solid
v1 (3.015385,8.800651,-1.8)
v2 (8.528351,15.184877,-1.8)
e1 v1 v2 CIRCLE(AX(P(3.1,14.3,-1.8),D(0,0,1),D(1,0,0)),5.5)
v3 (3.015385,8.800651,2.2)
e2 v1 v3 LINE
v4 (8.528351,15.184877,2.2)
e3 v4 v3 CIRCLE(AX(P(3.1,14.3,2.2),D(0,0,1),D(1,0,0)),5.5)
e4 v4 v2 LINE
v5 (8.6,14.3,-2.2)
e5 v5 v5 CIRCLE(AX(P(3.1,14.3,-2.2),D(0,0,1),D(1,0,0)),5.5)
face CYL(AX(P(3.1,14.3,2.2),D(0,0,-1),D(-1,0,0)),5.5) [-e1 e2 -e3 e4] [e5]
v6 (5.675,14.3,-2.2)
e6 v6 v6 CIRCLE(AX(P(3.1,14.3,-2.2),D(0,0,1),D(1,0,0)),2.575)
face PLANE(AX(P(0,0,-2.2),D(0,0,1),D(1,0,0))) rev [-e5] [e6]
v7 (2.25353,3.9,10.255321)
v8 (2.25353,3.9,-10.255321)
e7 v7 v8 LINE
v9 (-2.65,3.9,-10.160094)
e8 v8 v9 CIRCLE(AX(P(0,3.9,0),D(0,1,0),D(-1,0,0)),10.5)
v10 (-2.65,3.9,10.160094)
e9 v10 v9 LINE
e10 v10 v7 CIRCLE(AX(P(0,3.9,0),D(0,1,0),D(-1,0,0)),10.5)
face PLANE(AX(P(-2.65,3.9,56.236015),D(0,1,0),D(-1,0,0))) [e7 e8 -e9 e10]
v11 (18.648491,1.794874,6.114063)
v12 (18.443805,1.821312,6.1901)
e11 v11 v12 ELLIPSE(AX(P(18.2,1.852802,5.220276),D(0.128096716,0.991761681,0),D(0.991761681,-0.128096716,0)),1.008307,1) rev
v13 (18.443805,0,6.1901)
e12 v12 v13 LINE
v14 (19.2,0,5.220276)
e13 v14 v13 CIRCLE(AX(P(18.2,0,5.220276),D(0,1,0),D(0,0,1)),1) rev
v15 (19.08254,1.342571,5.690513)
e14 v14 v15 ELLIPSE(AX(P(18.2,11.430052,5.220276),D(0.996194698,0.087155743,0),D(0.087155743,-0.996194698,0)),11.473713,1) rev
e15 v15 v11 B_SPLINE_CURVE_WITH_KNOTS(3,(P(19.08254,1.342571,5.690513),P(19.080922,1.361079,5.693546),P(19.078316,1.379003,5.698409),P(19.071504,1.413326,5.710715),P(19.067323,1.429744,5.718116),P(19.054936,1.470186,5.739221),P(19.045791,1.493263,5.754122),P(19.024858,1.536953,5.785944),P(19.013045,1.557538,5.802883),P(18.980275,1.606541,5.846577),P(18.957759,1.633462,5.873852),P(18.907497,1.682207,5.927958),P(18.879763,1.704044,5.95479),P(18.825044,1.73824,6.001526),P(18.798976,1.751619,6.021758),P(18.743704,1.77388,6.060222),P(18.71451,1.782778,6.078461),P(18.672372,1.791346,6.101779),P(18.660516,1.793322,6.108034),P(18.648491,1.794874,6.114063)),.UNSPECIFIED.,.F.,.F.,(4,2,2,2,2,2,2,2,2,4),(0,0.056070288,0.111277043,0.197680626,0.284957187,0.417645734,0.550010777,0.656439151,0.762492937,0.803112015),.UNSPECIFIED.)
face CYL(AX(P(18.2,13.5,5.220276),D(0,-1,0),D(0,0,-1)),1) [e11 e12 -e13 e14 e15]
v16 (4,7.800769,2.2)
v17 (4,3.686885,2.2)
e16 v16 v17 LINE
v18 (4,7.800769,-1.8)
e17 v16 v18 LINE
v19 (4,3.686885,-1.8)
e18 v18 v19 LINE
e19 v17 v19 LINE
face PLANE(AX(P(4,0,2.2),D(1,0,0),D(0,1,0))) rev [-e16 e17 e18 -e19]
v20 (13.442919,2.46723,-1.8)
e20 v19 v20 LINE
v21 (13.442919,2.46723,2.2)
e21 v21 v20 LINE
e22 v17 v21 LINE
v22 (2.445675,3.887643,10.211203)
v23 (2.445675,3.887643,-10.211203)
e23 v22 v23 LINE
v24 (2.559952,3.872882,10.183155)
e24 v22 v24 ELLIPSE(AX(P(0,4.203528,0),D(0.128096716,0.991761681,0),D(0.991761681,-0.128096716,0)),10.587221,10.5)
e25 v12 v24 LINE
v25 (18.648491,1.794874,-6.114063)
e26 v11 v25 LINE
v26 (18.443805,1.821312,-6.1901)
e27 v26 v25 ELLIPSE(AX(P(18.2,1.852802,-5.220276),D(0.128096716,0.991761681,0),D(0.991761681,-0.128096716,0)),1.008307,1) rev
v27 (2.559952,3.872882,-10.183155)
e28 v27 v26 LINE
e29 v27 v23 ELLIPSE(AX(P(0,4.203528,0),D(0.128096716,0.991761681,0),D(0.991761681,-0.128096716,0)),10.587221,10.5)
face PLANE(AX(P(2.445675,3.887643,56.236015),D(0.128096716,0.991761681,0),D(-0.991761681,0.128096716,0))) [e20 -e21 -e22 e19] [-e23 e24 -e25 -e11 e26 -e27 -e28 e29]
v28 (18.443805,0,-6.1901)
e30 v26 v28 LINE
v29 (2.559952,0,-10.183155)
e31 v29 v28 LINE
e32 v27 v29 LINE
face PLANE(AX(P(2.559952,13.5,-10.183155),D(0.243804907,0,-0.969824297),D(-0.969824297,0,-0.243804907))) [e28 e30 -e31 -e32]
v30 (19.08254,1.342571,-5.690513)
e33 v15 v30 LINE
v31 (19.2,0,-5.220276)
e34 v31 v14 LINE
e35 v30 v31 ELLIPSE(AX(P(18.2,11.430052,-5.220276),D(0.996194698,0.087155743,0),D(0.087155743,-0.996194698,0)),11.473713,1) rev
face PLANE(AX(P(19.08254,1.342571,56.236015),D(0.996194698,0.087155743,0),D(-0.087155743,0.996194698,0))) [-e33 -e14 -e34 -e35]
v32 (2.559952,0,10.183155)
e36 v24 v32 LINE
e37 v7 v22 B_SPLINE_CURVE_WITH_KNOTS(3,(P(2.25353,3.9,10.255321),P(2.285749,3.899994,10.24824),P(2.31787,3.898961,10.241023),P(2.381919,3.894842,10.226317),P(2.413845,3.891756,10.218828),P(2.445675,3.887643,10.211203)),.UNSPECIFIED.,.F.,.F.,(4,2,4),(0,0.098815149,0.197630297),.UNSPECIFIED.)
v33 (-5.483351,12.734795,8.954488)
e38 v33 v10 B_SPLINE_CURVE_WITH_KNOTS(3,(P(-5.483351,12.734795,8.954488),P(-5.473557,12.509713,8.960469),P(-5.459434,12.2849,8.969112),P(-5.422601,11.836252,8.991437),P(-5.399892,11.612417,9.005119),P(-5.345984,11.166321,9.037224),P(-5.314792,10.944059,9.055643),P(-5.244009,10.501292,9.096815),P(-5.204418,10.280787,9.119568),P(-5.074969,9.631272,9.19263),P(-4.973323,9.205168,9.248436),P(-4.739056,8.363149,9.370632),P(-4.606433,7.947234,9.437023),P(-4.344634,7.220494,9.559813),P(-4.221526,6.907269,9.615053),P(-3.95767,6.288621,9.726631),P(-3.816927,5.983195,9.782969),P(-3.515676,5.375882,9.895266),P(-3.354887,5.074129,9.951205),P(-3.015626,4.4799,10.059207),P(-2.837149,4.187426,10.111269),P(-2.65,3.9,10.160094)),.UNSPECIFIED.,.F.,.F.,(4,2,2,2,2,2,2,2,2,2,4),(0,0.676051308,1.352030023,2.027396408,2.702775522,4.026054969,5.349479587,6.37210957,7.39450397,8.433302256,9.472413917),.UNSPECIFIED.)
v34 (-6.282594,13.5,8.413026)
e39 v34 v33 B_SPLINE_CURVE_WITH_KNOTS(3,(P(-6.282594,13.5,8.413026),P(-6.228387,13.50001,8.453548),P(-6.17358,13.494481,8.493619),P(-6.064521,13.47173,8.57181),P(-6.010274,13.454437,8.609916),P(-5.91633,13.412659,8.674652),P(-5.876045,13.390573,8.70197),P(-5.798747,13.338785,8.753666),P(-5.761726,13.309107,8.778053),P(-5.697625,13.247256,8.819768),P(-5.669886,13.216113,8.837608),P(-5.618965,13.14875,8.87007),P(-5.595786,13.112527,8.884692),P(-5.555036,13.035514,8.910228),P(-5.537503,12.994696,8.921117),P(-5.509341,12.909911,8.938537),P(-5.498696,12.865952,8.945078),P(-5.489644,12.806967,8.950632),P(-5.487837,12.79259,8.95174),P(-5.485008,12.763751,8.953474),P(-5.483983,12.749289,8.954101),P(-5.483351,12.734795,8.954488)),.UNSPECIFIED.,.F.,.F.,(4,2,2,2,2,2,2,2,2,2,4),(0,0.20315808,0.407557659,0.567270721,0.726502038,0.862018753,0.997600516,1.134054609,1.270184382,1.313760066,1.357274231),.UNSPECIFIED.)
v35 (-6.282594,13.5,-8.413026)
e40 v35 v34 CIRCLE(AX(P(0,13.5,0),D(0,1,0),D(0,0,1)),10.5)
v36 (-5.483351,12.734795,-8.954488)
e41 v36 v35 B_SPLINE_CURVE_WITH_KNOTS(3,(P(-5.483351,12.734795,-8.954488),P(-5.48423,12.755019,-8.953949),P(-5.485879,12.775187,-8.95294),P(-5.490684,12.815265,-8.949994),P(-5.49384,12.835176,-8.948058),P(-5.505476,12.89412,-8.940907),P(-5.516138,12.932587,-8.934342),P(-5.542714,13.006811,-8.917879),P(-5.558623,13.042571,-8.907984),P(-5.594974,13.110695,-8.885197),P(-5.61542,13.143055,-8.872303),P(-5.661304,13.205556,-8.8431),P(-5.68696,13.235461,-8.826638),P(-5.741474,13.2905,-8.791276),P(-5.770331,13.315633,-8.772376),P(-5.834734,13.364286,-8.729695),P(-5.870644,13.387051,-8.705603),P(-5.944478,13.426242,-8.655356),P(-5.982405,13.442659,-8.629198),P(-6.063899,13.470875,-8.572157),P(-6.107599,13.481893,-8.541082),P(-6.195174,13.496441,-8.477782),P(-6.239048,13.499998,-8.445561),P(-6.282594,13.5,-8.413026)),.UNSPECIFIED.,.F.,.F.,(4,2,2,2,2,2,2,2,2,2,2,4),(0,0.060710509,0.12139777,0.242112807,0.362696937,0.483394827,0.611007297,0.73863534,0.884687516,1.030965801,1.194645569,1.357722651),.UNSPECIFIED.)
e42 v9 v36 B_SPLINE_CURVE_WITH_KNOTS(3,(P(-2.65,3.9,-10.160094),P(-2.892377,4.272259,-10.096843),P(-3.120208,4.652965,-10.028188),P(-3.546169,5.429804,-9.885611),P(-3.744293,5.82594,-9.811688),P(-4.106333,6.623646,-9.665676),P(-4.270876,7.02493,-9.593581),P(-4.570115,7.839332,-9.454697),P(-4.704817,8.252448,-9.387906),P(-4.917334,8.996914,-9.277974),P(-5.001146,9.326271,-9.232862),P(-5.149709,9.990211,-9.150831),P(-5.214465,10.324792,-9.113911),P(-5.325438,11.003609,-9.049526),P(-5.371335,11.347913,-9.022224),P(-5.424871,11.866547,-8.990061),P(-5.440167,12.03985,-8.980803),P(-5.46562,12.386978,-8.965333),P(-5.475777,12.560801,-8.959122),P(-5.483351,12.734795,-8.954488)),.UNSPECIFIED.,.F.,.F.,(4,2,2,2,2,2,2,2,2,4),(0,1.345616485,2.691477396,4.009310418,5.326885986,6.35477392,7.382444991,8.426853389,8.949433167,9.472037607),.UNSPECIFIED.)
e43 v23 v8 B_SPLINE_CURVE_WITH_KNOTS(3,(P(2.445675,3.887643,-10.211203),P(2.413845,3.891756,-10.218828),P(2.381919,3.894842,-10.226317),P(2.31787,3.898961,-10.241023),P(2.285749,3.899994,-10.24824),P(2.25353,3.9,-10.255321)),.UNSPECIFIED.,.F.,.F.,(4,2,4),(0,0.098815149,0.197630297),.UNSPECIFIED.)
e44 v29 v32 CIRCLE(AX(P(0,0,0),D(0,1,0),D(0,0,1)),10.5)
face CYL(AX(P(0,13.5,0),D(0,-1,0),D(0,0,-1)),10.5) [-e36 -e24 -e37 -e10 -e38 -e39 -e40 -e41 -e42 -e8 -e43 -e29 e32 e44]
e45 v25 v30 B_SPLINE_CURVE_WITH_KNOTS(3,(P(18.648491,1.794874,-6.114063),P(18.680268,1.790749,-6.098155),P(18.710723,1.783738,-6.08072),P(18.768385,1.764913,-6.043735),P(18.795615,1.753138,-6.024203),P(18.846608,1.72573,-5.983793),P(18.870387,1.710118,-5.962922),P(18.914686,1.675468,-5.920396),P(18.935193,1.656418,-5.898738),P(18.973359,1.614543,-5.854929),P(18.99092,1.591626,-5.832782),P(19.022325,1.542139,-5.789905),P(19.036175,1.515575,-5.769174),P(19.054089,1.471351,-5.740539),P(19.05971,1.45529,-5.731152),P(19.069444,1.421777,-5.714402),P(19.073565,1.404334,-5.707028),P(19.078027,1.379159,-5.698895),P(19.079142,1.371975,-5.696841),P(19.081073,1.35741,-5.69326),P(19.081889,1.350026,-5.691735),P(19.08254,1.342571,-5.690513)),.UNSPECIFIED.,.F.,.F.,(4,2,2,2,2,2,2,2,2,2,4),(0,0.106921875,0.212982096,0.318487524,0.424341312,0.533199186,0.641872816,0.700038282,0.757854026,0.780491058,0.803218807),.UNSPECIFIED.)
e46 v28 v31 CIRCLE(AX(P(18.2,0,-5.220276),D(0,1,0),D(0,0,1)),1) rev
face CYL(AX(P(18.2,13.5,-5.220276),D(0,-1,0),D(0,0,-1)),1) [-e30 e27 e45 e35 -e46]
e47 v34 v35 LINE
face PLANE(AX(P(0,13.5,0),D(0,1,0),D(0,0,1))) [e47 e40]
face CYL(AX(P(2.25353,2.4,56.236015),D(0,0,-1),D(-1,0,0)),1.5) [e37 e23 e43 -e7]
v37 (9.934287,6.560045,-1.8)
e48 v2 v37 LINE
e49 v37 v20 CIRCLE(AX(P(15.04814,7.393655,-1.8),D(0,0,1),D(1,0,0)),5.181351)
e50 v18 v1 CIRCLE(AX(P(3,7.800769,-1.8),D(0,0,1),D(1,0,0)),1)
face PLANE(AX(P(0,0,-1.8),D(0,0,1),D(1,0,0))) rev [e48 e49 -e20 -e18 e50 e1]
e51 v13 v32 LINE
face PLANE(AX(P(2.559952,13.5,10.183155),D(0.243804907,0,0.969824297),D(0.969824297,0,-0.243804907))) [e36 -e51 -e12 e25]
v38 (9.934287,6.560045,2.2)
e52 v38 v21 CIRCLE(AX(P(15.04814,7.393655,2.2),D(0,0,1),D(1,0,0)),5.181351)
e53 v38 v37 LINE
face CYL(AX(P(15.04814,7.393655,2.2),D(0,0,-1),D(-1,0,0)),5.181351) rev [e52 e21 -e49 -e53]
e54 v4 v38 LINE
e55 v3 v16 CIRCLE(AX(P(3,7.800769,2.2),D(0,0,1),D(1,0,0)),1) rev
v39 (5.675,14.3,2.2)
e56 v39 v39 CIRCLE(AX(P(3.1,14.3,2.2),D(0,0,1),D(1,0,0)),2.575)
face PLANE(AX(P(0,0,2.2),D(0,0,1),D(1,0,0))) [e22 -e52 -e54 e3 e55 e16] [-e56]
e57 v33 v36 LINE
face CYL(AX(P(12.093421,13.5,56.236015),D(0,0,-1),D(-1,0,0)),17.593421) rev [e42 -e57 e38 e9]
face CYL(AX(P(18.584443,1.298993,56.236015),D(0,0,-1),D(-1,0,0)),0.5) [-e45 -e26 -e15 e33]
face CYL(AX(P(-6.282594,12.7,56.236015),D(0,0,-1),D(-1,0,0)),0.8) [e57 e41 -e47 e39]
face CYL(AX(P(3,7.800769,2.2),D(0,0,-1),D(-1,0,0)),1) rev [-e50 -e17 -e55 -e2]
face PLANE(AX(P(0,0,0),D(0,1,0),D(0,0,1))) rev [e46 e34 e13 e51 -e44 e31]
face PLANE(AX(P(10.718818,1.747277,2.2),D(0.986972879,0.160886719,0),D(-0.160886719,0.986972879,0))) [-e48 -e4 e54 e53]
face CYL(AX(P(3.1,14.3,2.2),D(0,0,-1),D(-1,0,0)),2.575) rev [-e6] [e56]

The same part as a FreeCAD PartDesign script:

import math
import FreeCAD as App
import Part
import Sketcher

V = App.Vector
Q = App.Units.Quantity


def edges_at(feature, points):
    """Names of the edges that pass closest to the given points."""
    edges = feature.Shape.Edges
    near = lambda p: min(range(len(edges)), key=lambda i: edges[i].distToShape(Part.Vertex(*p))[0])
    return sorted({f"Edge{near(p) + 1}" for p in points})

doc = App.newDocument("Part")
body = doc.addObject("PartDesign::Body", "Body")

# Sketch on XZ plane
sketch1 = body.newObject("Sketcher::SketchObject", "Sketch")
sketch1.AttachmentSupport = (doc.getObject("XZ_Plane"), [""])
sketch1.MapMode = "FlatFace"
sketch1.addGeometry(Part.LineSegment(V(19.2, 5.220276, 0), V(19.2, -5.220276, 0)), False)
sketch1.addGeometry(Part.ArcOfCircle(Part.Circle(V(18.2, -5.220276, 0), V(0, 0, 1), 1), math.radians(-75.888782), math.radians(0)), False)
sketch1.addGeometry(Part.LineSegment(V(18.443805, -6.1901, 0), V(2.559952, -10.183155, 0)), False)
sketch1.addGeometry(Part.ArcOfCircle(Part.Circle(V(0, 0, 0), V(0, 0, 1), 10.5), math.radians(75.888782), math.radians(284.111218)), False)
sketch1.addGeometry(Part.LineSegment(V(2.559952, 10.183155, 0), V(18.443805, 6.1901, 0)), False)
sketch1.addGeometry(Part.ArcOfCircle(Part.Circle(V(18.2, 5.220276, 0), V(0, 0, 1), 1), math.radians(0), math.radians(75.888782)), False)
sketch1.addConstraint(Sketcher.Constraint("Tangent", 0, 2, 1, 2))
sketch1.addConstraint(Sketcher.Constraint("Tangent", 1, 1, 2, 1))
sketch1.addConstraint(Sketcher.Constraint("Tangent", 2, 2, 3, 2))
sketch1.addConstraint(Sketcher.Constraint("Tangent", 3, 1, 4, 1))
sketch1.addConstraint(Sketcher.Constraint("Tangent", 4, 2, 5, 2))
sketch1.addConstraint(Sketcher.Constraint("Tangent", 5, 1, 0, 1))
sketch1.addConstraint(Sketcher.Constraint("Vertical", 0))
sketch1.addConstraint(Sketcher.Constraint("Coincident", 3, 3, -1, 1))
sketch1.addConstraint(Sketcher.Constraint("Equal", 1, 5))
sketch1.addConstraint(Sketcher.Constraint("Vertical", 2, 2, 3, 1))
sketch1.addConstraint(Sketcher.Constraint("Radius", 1, Q("1 mm")))
sketch1.addConstraint(Sketcher.Constraint("Radius", 3, Q("10.5 mm")))
sketch1.addConstraint(Sketcher.Constraint("DistanceX", -1, 1, 1, 3, Q("18.2 mm")))
sketch1.addConstraint(Sketcher.Constraint("DistanceY", 1, 1, -1, 1, Q("6.1901 mm")))
pad1 = body.newObject("PartDesign::Pad", "Pad")
pad1.Profile = sketch1
pad1.Length = 13.5
pad1.Reversed = True

# Sketch on XY plane
sketch2 = body.newObject("Sketcher::SketchObject", "Sketch001")
sketch2.AttachmentSupport = (doc.getObject("XY_Plane"), [""])
sketch2.MapMode = "FlatFace"
sketch2.addGeometry(Part.LineSegment(V(-85.748448, 13.5, 0), V(-6.282594, 13.5, 0)), False)
sketch2.addGeometry(Part.ArcOfCircle(Part.Circle(V(-6.282594, 12.7, 0), V(0, 0, 1), 0.8), math.radians(2.492798), math.radians(90)), False)
sketch2.addGeometry(Part.ArcOfCircle(Part.Circle(V(12.093421, 13.5, 0), V(0, 0, 1), 17.593421), math.radians(-177.507202), math.radians(-146.930324)), False)
sketch2.addGeometry(Part.LineSegment(V(-2.65, 3.9, 0), V(2.25353, 3.9, 0)), False)
sketch2.addGeometry(Part.ArcOfCircle(Part.Circle(V(2.25353, 2.4, 0), V(0, 0, 1), 1.5), math.radians(82.640378), math.radians(90)), False)
sketch2.addGeometry(Part.LineSegment(V(2.445675, 3.887643, 0), V(18.648491, 1.794874, 0)), False)
sketch2.addGeometry(Part.ArcOfCircle(Part.Circle(V(18.584443, 1.298993, 0), V(0, 0, 1), 0.5), math.radians(5), math.radians(82.640377)), False)
sketch2.addGeometry(Part.LineSegment(V(19.08254, 1.342571, 0), V(19.2, 0, 0)), False)
sketch2.addGeometry(Part.LineSegment(V(19.2, 0, 0), V(25.758334, -74.962105, 0)), False)
sketch2.addGeometry(Part.LineSegment(V(25.758334, -74.962105, 0), V(119.292984, 42.938637, 0)), False)
sketch2.addGeometry(Part.LineSegment(V(119.292984, 42.938637, 0), V(7.786202, 131.400743, 0)), False)
sketch2.addGeometry(Part.LineSegment(V(7.786202, 131.400743, 0), V(-85.748448, 13.5, 0)), False)
sketch2.addConstraint(Sketcher.Constraint("Tangent", 0, 2, 1, 2))
sketch2.addConstraint(Sketcher.Constraint("Tangent", 1, 1, 2, 1))
sketch2.addConstraint(Sketcher.Constraint("Coincident", 2, 2, 3, 1))
sketch2.addConstraint(Sketcher.Constraint("Tangent", 3, 2, 4, 2))
sketch2.addConstraint(Sketcher.Constraint("Tangent", 4, 1, 5, 1))
sketch2.addConstraint(Sketcher.Constraint("Tangent", 5, 2, 6, 2))
sketch2.addConstraint(Sketcher.Constraint("Tangent", 6, 1, 7, 1))
sketch2.addConstraint(Sketcher.Constraint("Coincident", 7, 2, 8, 1))
sketch2.addConstraint(Sketcher.Constraint("Coincident", 8, 2, 9, 1))
sketch2.addConstraint(Sketcher.Constraint("Coincident", 9, 2, 10, 1))
sketch2.addConstraint(Sketcher.Constraint("Coincident", 10, 2, 11, 1))
sketch2.addConstraint(Sketcher.Constraint("Coincident", 11, 2, 0, 1))
sketch2.addConstraint(Sketcher.Constraint("Horizontal", 0))
sketch2.addConstraint(Sketcher.Constraint("Horizontal", 3))
sketch2.addConstraint(Sketcher.Constraint("PointOnObject", 7, 2, -1))
sketch2.addConstraint(Sketcher.Constraint("Parallel", 7, 8))
sketch2.addConstraint(Sketcher.Constraint("Perpendicular", 9, 10))
sketch2.addConstraint(Sketcher.Constraint("Perpendicular", 10, 11))
sketch2.addConstraint(Sketcher.Constraint("Horizontal", 2, 3, 0, 2))
sketch2.addConstraint(Sketcher.Constraint("Equal", 9, 11))
sketch2.addConstraint(Sketcher.Constraint("Radius", 1, Q("0.8 mm")))
sketch2.addConstraint(Sketcher.Constraint("Radius", 4, Q("1.5 mm")))
sketch2.addConstraint(Sketcher.Constraint("Radius", 6, Q("0.5 mm")))
sketch2.addConstraint(Sketcher.Constraint("Angle", 7, Q("-85 deg")))
sketch2.addConstraint(Sketcher.Constraint("DistanceY", -1, 1, 1, 3, Q("12.7 mm")))
sketch2.addConstraint(Sketcher.Constraint("DistanceY", -1, 1, 4, 3, Q("2.4 mm")))
sketch2.addConstraint(Sketcher.Constraint("DistanceX", -1, 1, 7, 2, Q("19.2 mm")))
sketch2.addConstraint(Sketcher.Constraint("DistanceX", 2, 2, -1, 1, Q("2.65 mm")))
sketch2.addConstraint(Sketcher.Constraint("Radius", 2, Q("17.593421 mm")))
sketch2.addConstraint(Sketcher.Constraint("Distance", 7, Q("1.3477 mm")))
sketch2.addConstraint(Sketcher.Constraint("DistanceX", 3, 1, 3, 2, Q("4.90353 mm")))
sketch2.addConstraint(Sketcher.Constraint("DistanceX", -1, 1, 10, 2, Q("7.786202 mm")))
sketch2.addConstraint(Sketcher.Constraint("DistanceY", 8, 2, 6, 3, Q("76.261098 mm")))
sketch2.addConstraint(Sketcher.Constraint("Distance", 10, Q("142.335191 mm")))
pocket1 = body.newObject("PartDesign::Pocket", "Pocket")
pocket1.Profile = sketch2
pocket1.Type = "ThroughAll"
pocket1.Midplane = True

# Sketch on XY plane
sketch3 = body.newObject("Sketcher::SketchObject", "Sketch002")
sketch3.AttachmentSupport = (doc.getObject("XY_Plane"), [""])
sketch3.MapMode = "FlatFace"
sketch3.addGeometry(Part.LineSegment(V(9.934287, 6.560045, 0), V(8.528351, 15.184877, 0)), False)
sketch3.addGeometry(Part.ArcOfCircle(Part.Circle(V(3.1, 14.3, 0), V(0, 0, 1), 5.5), math.radians(9.258368), math.radians(279.418027)), False)
sketch3.addGeometry(Part.LineSegment(V(4, 8.874136, 0), V(4, 2.282192, 0)), False)
sketch3.addGeometry(Part.LineSegment(V(4, 2.282192, 0), V(14.2, 2.282192, 0)), False)
sketch3.addGeometry(Part.ArcOfCircle(Part.Circle(V(15.04814, 7.393655, 0), V(0, 0, 1), 5.181351), math.radians(-170.741632), math.radians(-99.421198)), False)
sketch3.addGeometry(Part.Circle(V(3.1, 14.3, 0), V(0, 0, 1), 2.575), False)
sketch3.addConstraint(Sketcher.Constraint("Tangent", 0, 2, 1, 1))
sketch3.addConstraint(Sketcher.Constraint("Coincident", 1, 2, 2, 1))
sketch3.addConstraint(Sketcher.Constraint("Coincident", 2, 2, 3, 1))
sketch3.addConstraint(Sketcher.Constraint("Coincident", 3, 2, 4, 2))
sketch3.addConstraint(Sketcher.Constraint("Tangent", 4, 1, 0, 1))
sketch3.addConstraint(Sketcher.Constraint("Vertical", 2))
sketch3.addConstraint(Sketcher.Constraint("Horizontal", 3))
sketch3.addConstraint(Sketcher.Constraint("Coincident", 5, 3, 1, 3))
sketch3.addConstraint(Sketcher.Constraint("Radius", 1, Q("5.5 mm")))
sketch3.addConstraint(Sketcher.Constraint("Diameter", 5, Q("5.15 mm")))
sketch3.addConstraint(Sketcher.Constraint("DistanceX", 3, 1, 3, 2, Q("10.2 mm")))
sketch3.addConstraint(Sketcher.Constraint("DistanceX", -1, 1, 1, 2, Q("4 mm")))
sketch3.addConstraint(Sketcher.Constraint("DistanceX", -1, 1, 1, 3, Q("3.1 mm")))
sketch3.addConstraint(Sketcher.Constraint("DistanceY", -1, 1, 1, 3, Q("14.3 mm")))
sketch3.addConstraint(Sketcher.Constraint("Radius", 4, Q("5.181351 mm")))
sketch3.addConstraint(Sketcher.Constraint("DistanceY", 2, 2, 2, 1, Q("6.591944 mm")))
sketch3.addConstraint(Sketcher.Constraint("DistanceX", -1, 1, 4, 3, Q("15.04814 mm")))
pad2 = body.newObject("PartDesign::Pad", "Pad001")
pad2.Profile = sketch3
pad2.Type = "TwoLengths"
pad2.Length = 2.2
pad2.Length2 = 1.8

# Sketch on XY plane
sketch4 = body.newObject("Sketcher::SketchObject", "Sketch003")
sketch4.AttachmentSupport = (doc.getObject("XY_Plane"), [""])
sketch4.MapMode = "FlatFace"
sketch4.addGeometry(Part.Circle(V(3.1, 14.3, 0), V(0, 0, 1), 5.5), False)
sketch4.addGeometry(Part.Circle(V(3.1, 14.3, 0), V(0, 0, 1), 2.575), False)
sketch4.addConstraint(Sketcher.Constraint("Coincident", 1, 3, 0, 3))
sketch4.addConstraint(Sketcher.Constraint("Diameter", 0, Q("11 mm")))
sketch4.addConstraint(Sketcher.Constraint("Diameter", 1, Q("5.15 mm")))
sketch4.addConstraint(Sketcher.Constraint("DistanceX", -1, 1, 0, 3, Q("3.1 mm")))
sketch4.addConstraint(Sketcher.Constraint("DistanceY", -1, 1, 0, 3, Q("14.3 mm")))
pad3 = body.newObject("PartDesign::Pad", "Pad002")
pad3.Profile = sketch4
pad3.Length = 2.2
pad3.Reversed = True
doc.recompute()

fillet = body.newObject("PartDesign::Fillet", "Fillet")
fillet.Base = (pad3, edges_at(pad3, [(4, 8.874, 0.2)]))
fillet.Radius = 1

doc.recompute()
